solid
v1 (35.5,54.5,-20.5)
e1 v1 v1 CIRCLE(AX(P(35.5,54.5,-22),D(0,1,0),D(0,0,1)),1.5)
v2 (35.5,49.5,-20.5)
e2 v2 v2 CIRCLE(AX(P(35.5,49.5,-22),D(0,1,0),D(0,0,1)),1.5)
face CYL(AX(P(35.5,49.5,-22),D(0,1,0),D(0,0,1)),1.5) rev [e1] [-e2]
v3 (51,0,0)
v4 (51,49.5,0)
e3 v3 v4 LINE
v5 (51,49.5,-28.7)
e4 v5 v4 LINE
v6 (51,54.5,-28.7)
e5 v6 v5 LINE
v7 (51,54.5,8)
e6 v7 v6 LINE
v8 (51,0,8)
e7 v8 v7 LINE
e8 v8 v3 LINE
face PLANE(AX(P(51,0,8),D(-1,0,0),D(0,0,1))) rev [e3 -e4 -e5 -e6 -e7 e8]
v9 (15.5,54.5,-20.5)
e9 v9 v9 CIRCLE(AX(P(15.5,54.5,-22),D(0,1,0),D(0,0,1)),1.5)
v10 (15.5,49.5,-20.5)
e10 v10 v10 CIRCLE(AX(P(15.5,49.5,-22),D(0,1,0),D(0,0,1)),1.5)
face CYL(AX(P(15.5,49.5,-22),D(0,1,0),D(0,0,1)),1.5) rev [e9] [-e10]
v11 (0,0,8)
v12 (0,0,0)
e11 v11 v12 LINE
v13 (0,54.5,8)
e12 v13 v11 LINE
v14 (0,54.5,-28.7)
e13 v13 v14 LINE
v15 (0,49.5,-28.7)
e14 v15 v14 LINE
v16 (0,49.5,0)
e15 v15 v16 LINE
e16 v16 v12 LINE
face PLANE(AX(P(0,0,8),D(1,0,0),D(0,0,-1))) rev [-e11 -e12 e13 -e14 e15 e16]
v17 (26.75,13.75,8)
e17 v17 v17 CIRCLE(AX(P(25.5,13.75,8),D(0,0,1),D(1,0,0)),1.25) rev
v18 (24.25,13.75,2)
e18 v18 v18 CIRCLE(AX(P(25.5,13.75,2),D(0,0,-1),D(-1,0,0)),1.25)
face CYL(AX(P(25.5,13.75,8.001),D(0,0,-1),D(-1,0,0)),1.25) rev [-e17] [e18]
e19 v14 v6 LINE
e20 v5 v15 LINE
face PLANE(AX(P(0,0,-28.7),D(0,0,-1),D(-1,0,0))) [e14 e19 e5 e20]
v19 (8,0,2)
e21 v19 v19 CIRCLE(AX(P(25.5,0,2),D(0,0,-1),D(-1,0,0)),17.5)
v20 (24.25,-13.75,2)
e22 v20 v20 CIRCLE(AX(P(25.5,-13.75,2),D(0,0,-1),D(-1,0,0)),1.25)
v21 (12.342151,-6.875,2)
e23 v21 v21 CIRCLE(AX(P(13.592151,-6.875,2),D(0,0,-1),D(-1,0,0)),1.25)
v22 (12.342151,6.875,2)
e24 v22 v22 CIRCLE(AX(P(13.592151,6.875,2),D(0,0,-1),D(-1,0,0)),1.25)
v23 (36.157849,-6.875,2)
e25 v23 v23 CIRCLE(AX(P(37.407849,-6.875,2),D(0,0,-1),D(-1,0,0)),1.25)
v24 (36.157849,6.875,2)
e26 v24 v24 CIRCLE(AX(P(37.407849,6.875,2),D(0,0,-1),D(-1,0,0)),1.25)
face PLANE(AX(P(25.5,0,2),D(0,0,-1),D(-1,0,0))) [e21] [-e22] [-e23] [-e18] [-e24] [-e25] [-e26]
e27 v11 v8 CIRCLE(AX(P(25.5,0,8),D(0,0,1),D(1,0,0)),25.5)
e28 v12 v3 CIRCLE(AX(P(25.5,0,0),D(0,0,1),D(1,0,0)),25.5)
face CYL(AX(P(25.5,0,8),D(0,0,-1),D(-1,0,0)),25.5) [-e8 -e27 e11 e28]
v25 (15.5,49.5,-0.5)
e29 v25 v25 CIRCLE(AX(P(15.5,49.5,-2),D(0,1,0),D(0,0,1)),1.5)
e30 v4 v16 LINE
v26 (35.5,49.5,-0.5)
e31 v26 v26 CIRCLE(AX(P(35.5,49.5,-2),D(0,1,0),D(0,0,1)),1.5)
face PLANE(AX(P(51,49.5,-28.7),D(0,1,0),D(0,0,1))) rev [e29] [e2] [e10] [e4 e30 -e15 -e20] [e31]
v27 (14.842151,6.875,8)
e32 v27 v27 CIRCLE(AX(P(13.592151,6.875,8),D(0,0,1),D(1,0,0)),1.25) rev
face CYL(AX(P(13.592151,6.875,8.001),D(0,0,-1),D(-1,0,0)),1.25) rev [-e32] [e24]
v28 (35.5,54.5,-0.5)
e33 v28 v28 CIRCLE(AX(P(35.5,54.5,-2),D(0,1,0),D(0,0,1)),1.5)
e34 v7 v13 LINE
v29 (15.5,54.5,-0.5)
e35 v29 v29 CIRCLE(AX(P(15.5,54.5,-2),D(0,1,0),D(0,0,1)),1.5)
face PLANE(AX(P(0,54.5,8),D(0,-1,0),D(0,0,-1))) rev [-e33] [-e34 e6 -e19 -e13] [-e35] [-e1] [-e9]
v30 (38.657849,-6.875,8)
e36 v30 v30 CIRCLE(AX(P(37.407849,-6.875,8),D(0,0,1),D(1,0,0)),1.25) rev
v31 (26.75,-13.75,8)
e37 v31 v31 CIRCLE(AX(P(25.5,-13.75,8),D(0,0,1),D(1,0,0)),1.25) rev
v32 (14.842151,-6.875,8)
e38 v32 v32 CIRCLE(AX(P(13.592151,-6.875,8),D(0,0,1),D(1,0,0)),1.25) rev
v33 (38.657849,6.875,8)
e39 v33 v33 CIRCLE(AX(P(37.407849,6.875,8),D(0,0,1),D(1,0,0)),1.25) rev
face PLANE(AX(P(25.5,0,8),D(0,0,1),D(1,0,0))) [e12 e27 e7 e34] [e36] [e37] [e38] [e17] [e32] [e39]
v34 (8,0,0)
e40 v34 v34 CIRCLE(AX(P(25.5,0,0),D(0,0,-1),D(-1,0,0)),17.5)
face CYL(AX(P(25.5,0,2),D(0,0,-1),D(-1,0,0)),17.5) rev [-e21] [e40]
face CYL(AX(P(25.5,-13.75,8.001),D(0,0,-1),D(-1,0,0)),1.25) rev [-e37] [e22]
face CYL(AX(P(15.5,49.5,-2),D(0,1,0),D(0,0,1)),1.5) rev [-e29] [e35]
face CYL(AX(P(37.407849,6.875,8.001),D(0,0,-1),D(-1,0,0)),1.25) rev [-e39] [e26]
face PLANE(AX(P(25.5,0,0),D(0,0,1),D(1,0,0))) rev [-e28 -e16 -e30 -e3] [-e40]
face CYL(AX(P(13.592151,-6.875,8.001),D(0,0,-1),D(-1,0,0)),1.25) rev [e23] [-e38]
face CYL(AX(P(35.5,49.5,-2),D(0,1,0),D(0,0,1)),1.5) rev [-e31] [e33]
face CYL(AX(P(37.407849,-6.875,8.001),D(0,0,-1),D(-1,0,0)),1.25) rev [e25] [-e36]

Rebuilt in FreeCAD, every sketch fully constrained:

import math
import FreeCAD as App
import Part
import Sketcher
Q = App.Units.Quantity

doc = App.newDocument("Part")
params = doc.addObject("Spreadsheet::Sheet", "Params")
for row, (alias, value) in enumerate([
    ("sketch1_radius", "25.5 mm"),
    ("sketch1_height", "54.5 mm"),
    ("pad1_length", "8 mm"),
    ("sketch2_width", "51 mm"),
    ("sketch2_height", "5 mm"),
    ("pad2_length", "28.7 mm"),
    ("sketch3_diameter", "35 mm"),
    ("pocket1_length", "2 mm"),
    ("sketch4_diameter", "2.5 mm"),
    ("sketch5_diameter", "2.5 mm"),
    ("sketch6_diameter", "2.5 mm"),
    ("sketch7_diameter", "2.5 mm"),
    ("sketch8_diameter", "2.5 mm"),
    ("sketch9_diameter", "2.5 mm"),
    ("sketch10_diameter", "3 mm"),
    ("pocket8_length", "5 mm"),
], start=1):
    params.set(f"A{row}", alias)
    params.set(f"B{row}", "=" + value)
    params.setAlias(f"B{row}", alias)

body = doc.addObject("PartDesign::Body", "Body")

# Sketch on XY plane
sketch1 = doc.addObject("Sketcher::SketchObject", "Sketch")
body.addObject(sketch1)
sketch1.AttachmentSupport = (doc.XY_Plane, [""])
sketch1.MapMode = "FlatFace"
sketch1.addGeometry([
    Part.LineSegment(App.Vector(0, 54.5, 0), App.Vector(0, 0, 0)),
    Part.ArcOfCircle(Part.Circle(App.Vector(25.5, 0, 0), App.Vector(0, 0, 1), 25.5), math.radians(180), math.radians(360)),
    Part.LineSegment(App.Vector(51, 0, 0), App.Vector(51, 54.5, 0)),
    Part.LineSegment(App.Vector(51, 54.5, 0), App.Vector(0, 54.5, 0)),
], False)
sketch1.addConstraint([
    Sketcher.Constraint("Tangent", 0, 2, 1, 1),
    Sketcher.Constraint("Tangent", 1, 2, 2, 1),
    Sketcher.Constraint("Coincident", 2, 2, 3, 1),
    Sketcher.Constraint("Coincident", 3, 2, 0, 1),
    Sketcher.Constraint("Vertical", 0),
    Sketcher.Constraint("Vertical", 2),
    Sketcher.Constraint("Horizontal", 3),
    Sketcher.Constraint("Coincident", 0, 2, -1, 1),
    Sketcher.Constraint("Radius", 1, Q("25.5 mm")),
    Sketcher.Constraint("DistanceY", 0, 2, 0, 1, Q("54.5 mm")),
])
sketch1.setExpression("Constraints[8]", "Params.sketch1_radius")
sketch1.setExpression("Constraints[9]", "Params.sketch1_height")
pad1 = doc.addObject("PartDesign::Pad", "Pad")
body.addObject(pad1)
pad1.Profile = sketch1
pad1.setExpression("Length", "Params.pad1_length")

# Sketch on XY plane
sketch2 = doc.addObject("Sketcher::SketchObject", "Sketch001")
body.addObject(sketch2)
sketch2.AttachmentSupport = (doc.XY_Plane, [""])
sketch2.MapMode = "FlatFace"
sketch2.addGeometry([
    Part.LineSegment(App.Vector(51, 54.5, 0), App.Vector(51, 49.5, 0)),
    Part.LineSegment(App.Vector(51, 49.5, 0), App.Vector(0, 49.5, 0)),
    Part.LineSegment(App.Vector(0, 49.5, 0), App.Vector(0, 54.5, 0)),
    Part.LineSegment(App.Vector(0, 54.5, 0), App.Vector(51, 54.5, 0)),
], False)
sketch2.addConstraint([
    Sketcher.Constraint("Coincident", 0, 2, 1, 1),
    Sketcher.Constraint("Coincident", 1, 2, 2, 1),
    Sketcher.Constraint("Coincident", 2, 2, 3, 1),
    Sketcher.Constraint("Coincident", 3, 2, 0, 1),
    Sketcher.Constraint("Vertical", 0),
    Sketcher.Constraint("Horizontal", 1),
    Sketcher.Constraint("Vertical", 2),
    Sketcher.Constraint("Horizontal", 3),
    Sketcher.Constraint("PointOnObject", 1, 2, -2),
    Sketcher.Constraint("DistanceX", 1, 2, 1, 1, Q("51 mm")),
    Sketcher.Constraint("DistanceY", 0, 2, 0, 1, Q("5 mm")),
    Sketcher.Constraint("DistanceY", -1, 1, 0, 2, Q("49.5 mm")),
])
sketch2.setExpression("Constraints[9]", "Params.sketch2_width")
sketch2.setExpression("Constraints[10]", "Params.sketch2_height")
pad2 = doc.addObject("PartDesign::Pad", "Pad001")
body.addObject(pad2)
pad2.Profile = sketch2
pad2.setExpression("Length", "Params.pad2_length")
pad2.Reversed = True

# Sketch on XY plane
sketch3 = doc.addObject("Sketcher::SketchObject", "Sketch002")
body.addObject(sketch3)
sketch3.AttachmentSupport = (doc.XY_Plane, [""])
sketch3.MapMode = "FlatFace"
sketch3.addGeometry(Part.Circle(App.Vector(25.5, 0, 0), App.Vector(0, 0, 1), 17.5), False)
sketch3.addConstraint([
    Sketcher.Constraint("PointOnObject", 0, 3, -1),
    Sketcher.Constraint("Diameter", 0, Q("35 mm")),
    Sketcher.Constraint("DistanceX", -1, 1, 0, 3, Q("25.5 mm")),
])
sketch3.setExpression("Constraints[1]", "Params.sketch3_diameter")
pocket1 = doc.addObject("PartDesign::Pocket", "Pocket")
body.addObject(pocket1)
pocket1.Profile = sketch3
pocket1.setExpression("Length", "Params.pocket1_length")
pocket1.Reversed = True

# Sketch on XY plane
sketch4 = doc.addObject("Sketcher::SketchObject", "Sketch003")
body.addObject(sketch4)
sketch4.AttachmentSupport = (doc.XY_Plane, [""])
sketch4.MapMode = "FlatFace"
sketch4.AttachmentOffset = App.Placement(App.Vector(0, 0, 2), App.Rotation())
sketch4.addGeometry(Part.Circle(App.Vector(25.5, 13.75, 0), App.Vector(0, 0, 1), 1.25), False)
sketch4.addConstraint([
    Sketcher.Constraint("Diameter", 0, Q("2.5 mm")),
    Sketcher.Constraint("DistanceX", -1, 1, 0, 3, Q("25.5 mm")),
    Sketcher.Constraint("DistanceY", -1, 1, 0, 3, Q("13.75 mm")),
])
sketch4.setExpression("Constraints[0]", "Params.sketch4_diameter")
pocket2 = doc.addObject("PartDesign::Pocket", "Pocket001")
body.addObject(pocket2)
pocket2.Profile = sketch4
pocket2.Type = "UpToFirst"
pocket2.Reversed = True

# Sketch on XY plane
sketch5 = doc.addObject("Sketcher::SketchObject", "Sketch004")
body.addObject(sketch5)
sketch5.AttachmentSupport = (doc.XY_Plane, [""])
sketch5.MapMode = "FlatFace"
sketch5.AttachmentOffset = App.Placement(App.Vector(0, 0, 2), App.Rotation())
sketch5.addGeometry(Part.Circle(App.Vector(13.592151, 6.875, 0), App.Vector(0, 0, 1), 1.25), False)
sketch5.addConstraint([
    Sketcher.Constraint("Diameter", 0, Q("2.5 mm")),
    Sketcher.Constraint("DistanceY", -1, 1, 0, 3, Q("6.875 mm")),
    Sketcher.Constraint("DistanceX", -1, 1, 0, 3, Q("13.592151 mm")),
])
sketch5.setExpression("Constraints[0]", "Params.sketch5_diameter")
pocket3 = doc.addObject("PartDesign::Pocket", "Pocket002")
body.addObject(pocket3)
pocket3.Profile = sketch5
pocket3.Type = "UpToFirst"
pocket3.Reversed = True

# Sketch on XY plane
sketch6 = doc.addObject("Sketcher::SketchObject", "Sketch005")
body.addObject(sketch6)
sketch6.AttachmentSupport = (doc.XY_Plane, [""])
sketch6.MapMode = "FlatFace"
sketch6.AttachmentOffset = App.Placement(App.Vector(0, 0, 2), App.Rotation())
sketch6.addGeometry(Part.Circle(App.Vector(13.592151, -6.875, 0), App.Vector(0, 0, 1), 1.25), False)
sketch6.addConstraint([
    Sketcher.Constraint("Diameter", 0, Q("2.5 mm")),
    Sketcher.Constraint("DistanceY", 0, 3, -1, 1, Q("6.875 mm")),
    Sketcher.Constraint("DistanceX", -1, 1, 0, 3, Q("13.592151 mm")),
])
sketch6.setExpression("Constraints[0]", "Params.sketch6_diameter")
pocket4 = doc.addObject("PartDesign::Pocket", "Pocket003")
body.addObject(pocket4)
pocket4.Profile = sketch6
pocket4.Type = "UpToFirst"
pocket4.Reversed = True

# Sketch on XY plane
sketch7 = doc.addObject("Sketcher::SketchObject", "Sketch006")
body.addObject(sketch7)
sketch7.AttachmentSupport = (doc.XY_Plane, [""])
sketch7.MapMode = "FlatFace"
sketch7.AttachmentOffset = App.Placement(App.Vector(0, 0, 2), App.Rotation())
sketch7.addGeometry(Part.Circle(App.Vector(25.5, -13.75, 0), App.Vector(0, 0, 1), 1.25), False)
sketch7.addConstraint([
    Sketcher.Constraint("Diameter", 0, Q("2.5 mm")),
    Sketcher.Constraint("DistanceX", -1, 1, 0, 3, Q("25.5 mm")),
    Sketcher.Constraint("DistanceY", 0, 3, -1, 1, Q("13.75 mm")),
])
sketch7.setExpression("Constraints[0]", "Params.sketch7_diameter")
pocket5 = doc.addObject("PartDesign::Pocket", "Pocket004")
body.addObject(pocket5)
pocket5.Profile = sketch7
pocket5.Type = "UpToFirst"
pocket5.Reversed = True

# Sketch on XY plane
sketch8 = doc.addObject("Sketcher::SketchObject", "Sketch007")
body.addObject(sketch8)
sketch8.AttachmentSupport = (doc.XY_Plane, [""])
sketch8.MapMode = "FlatFace"
sketch8.AttachmentOffset = App.Placement(App.Vector(0, 0, 2), App.Rotation())
sketch8.addGeometry(Part.Circle(App.Vector(37.407849, -6.875, 0), App.Vector(0, 0, 1), 1.25), False)
sketch8.addConstraint([
    Sketcher.Constraint("Diameter", 0, Q("2.5 mm")),
    Sketcher.Constraint("DistanceY", 0, 3, -1, 1, Q("6.875 mm")),
    Sketcher.Constraint("DistanceX", -1, 1, 0, 3, Q("37.407849 mm")),
])
sketch8.setExpression("Constraints[0]", "Params.sketch8_diameter")
pocket6 = doc.addObject("PartDesign::Pocket", "Pocket005")
body.addObject(pocket6)
pocket6.Profile = sketch8
pocket6.Type = "UpToFirst"
pocket6.Reversed = True

# Sketch on XY plane
sketch9 = doc.addObject("Sketcher::SketchObject", "Sketch008")
body.addObject(sketch9)
sketch9.AttachmentSupport = (doc.XY_Plane, [""])
sketch9.MapMode = "FlatFace"
sketch9.AttachmentOffset = App.Placement(App.Vector(0, 0, 2), App.Rotation())
sketch9.addGeometry(Part.Circle(App.Vector(37.407849, 6.875, 0), App.Vector(0, 0, 1), 1.25), False)
sketch9.addConstraint([
    Sketcher.Constraint("Diameter", 0, Q("2.5 mm")),
    Sketcher.Constraint("DistanceY", -1, 1, 0, 3, Q("6.875 mm")),
    Sketcher.Constraint("DistanceX", -1, 1, 0, 3, Q("37.407849 mm")),
])
sketch9.setExpression("Constraints[0]", "Params.sketch9_diameter")
pocket7 = doc.addObject("PartDesign::Pocket", "Pocket006")
body.addObject(pocket7)
pocket7.Profile = sketch9
pocket7.Type = "UpToFirst"
pocket7.Reversed = True

# Sketch on XZ plane
sketch10 = doc.addObject("Sketcher::SketchObject", "Sketch009")
body.addObject(sketch10)
sketch10.AttachmentSupport = (doc.XZ_Plane, [""])
sketch10.MapMode = "FlatFace"
sketch10.AttachmentOffset = App.Placement(App.Vector(0, 0, -54.5), App.Rotation())
sketch10.addGeometry([
    Part.Circle(App.Vector(15.5, -22, 0), App.Vector(0, 0, 1), 1.5),
    Part.Circle(App.Vector(35.5, -22, 0), App.Vector(0, 0, 1), 1.5),
    Part.Circle(App.Vector(35.5, -2, 0), App.Vector(0, 0, 1), 1.5),
    Part.Circle(App.Vector(15.5, -2, 0), App.Vector(0, 0, 1), 1.5),
], False)
sketch10.addConstraint([
    Sketcher.Constraint("Equal", 0, 1),
    Sketcher.Constraint("Equal", 1, 2),
    Sketcher.Constraint("Equal", 2, 3),
    Sketcher.Constraint("Horizontal", 0, 3, 1, 3),
    Sketcher.Constraint("Horizontal", 2, 3, 3, 3),
    Sketcher.Constraint("Vertical", 1, 3, 2, 3),
    Sketcher.Constraint("Vertical", 0, 3, 3, 3),
    Sketcher.Constraint("Diameter", 0, Q("3 mm")),
    Sketcher.Constraint("DistanceY", 0, 3, -1, 1, Q("22 mm")),
    Sketcher.Constraint("DistanceY", 2, 3, -1, 1, Q("2 mm")),
    Sketcher.Constraint("DistanceX", 0, 3, 1, 3, Q("20 mm")),
    Sketcher.Constraint("DistanceX", -1, 1, 0, 3, Q("15.5 mm")),
])
sketch10.setExpression("Constraints[7]", "Params.sketch10_diameter")
pocket8 = doc.addObject("PartDesign::Pocket", "Pocket007")
body.addObject(pocket8)
pocket8.Profile = sketch10
pocket8.setExpression("Length", "Params.pocket8_length")
pocket8.Reversed = True

doc.recompute()
